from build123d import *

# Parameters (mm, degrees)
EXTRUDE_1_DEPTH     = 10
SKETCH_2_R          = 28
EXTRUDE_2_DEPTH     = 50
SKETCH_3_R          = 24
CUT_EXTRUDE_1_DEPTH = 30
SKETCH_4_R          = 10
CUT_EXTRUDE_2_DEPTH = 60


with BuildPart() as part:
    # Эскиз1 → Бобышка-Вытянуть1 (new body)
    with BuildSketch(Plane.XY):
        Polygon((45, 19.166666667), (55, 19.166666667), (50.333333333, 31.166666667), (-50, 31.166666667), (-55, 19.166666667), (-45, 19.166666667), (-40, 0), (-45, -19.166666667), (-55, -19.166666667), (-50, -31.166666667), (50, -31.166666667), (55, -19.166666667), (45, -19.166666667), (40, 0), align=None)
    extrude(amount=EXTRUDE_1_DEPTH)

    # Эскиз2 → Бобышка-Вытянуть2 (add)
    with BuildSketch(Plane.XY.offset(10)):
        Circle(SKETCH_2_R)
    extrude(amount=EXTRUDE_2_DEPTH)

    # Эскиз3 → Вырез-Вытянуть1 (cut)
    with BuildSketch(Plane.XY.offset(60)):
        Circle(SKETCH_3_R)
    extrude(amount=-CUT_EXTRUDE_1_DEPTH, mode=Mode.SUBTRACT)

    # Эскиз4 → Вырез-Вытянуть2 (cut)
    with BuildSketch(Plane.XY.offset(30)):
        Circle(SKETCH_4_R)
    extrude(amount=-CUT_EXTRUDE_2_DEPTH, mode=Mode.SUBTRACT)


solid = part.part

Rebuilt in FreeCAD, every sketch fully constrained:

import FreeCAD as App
import Part
import Sketcher
from FreeCAD import Vector

doc = App.newDocument("Part")
body = doc.addObject("PartDesign::Body", "Body")

sketch1 = doc.addObject("Sketcher::SketchObject", "Sketch")
body.addObject(sketch1)
sketch1.AttachmentSupport = (doc.XY_Plane, [""])
sketch1.MapMode = "FlatFace"
sketch1.addGeometry([
    Part.LineSegment(Vector(45, 19, 0), Vector(55, 19, 0)),
    Part.LineSegment(Vector(55, 19, 0), Vector(50, 31, 0)),
    Part.LineSegment(Vector(50, 31, 0), Vector(-50, 31, 0)),
    Part.LineSegment(Vector(-50, 31, 0), Vector(-55, 19, 0)),
    Part.LineSegment(Vector(-55, 19, 0), Vector(-45, 19, 0)),
    Part.LineSegment(Vector(-45, 19, 0), Vector(-40, 0, 0)),
    Part.LineSegment(Vector(-40, 0, 0), Vector(-45, -19, 0)),
    Part.LineSegment(Vector(-45, -19, 0), Vector(-55, -19, 0)),
    Part.LineSegment(Vector(-55, -19, 0), Vector(-50, -31, 0)),
    Part.LineSegment(Vector(-50, -31, 0), Vector(50, -31, 0)),
    Part.LineSegment(Vector(50, -31, 0), Vector(55, -19, 0)),
    Part.LineSegment(Vector(55, -19, 0), Vector(45, -19, 0)),
    Part.LineSegment(Vector(45, -19, 0), Vector(40, 0, 0)),
    Part.LineSegment(Vector(40, 0, 0), Vector(45, 19, 0)),
], False)
sketch1.addConstraint([
    Sketcher.Constraint("Coincident", 0, 2, 1, 1),
    Sketcher.Constraint("Coincident", 1, 2, 2, 1),
    Sketcher.Constraint("Coincident", 2, 2, 3, 1),
    Sketcher.Constraint("Coincident", 3, 2, 4, 1),
    Sketcher.Constraint("Coincident", 4, 2, 5, 1),
    Sketcher.Constraint("Coincident", 5, 2, 6, 1),
    Sketcher.Constraint("Coincident", 6, 2, 7, 1),
    Sketcher.Constraint("Coincident", 7, 2, 8, 1),
    Sketcher.Constraint("Coincident", 8, 2, 9, 1),
    Sketcher.Constraint("Coincident", 9, 2, 10, 1),
    Sketcher.Constraint("Coincident", 10, 2, 11, 1),
    Sketcher.Constraint("Coincident", 11, 2, 12, 1),
    Sketcher.Constraint("Coincident", 12, 2, 13, 1),
    Sketcher.Constraint("Coincident", 13, 2, 0, 1),
    Sketcher.Constraint("Horizontal", 0),
    Sketcher.Constraint("Horizontal", 2),
    Sketcher.Constraint("Horizontal", 4),
    Sketcher.Constraint("Horizontal", 7),
    Sketcher.Constraint("Horizontal", 9),
    Sketcher.Constraint("Horizontal", 11),
    Sketcher.Constraint("Symmetric", 0, 2, 7, 2, -1, 1),
    Sketcher.Constraint("Symmetric", 2, 2, 9, 2, -1, 1),
    Sketcher.Constraint("Symmetric", 3, 2, 10, 2, -1, 1),
    Sketcher.Constraint("Symmetric", 5, 2, 12, 2, -1, 1),
    Sketcher.Constraint("Symmetric", 0, 2, 3, 2, -2),
    Sketcher.Constraint("PointOnObject", 5, 2, -1),
    Sketcher.Constraint("Parallel", 5, 12),
    Sketcher.Constraint("Parallel", 6, 13),
    Sketcher.Constraint("Vertical", 4, 2, 6, 2),
    Sketcher.Constraint("Vertical", 2, 2, 8, 2),
    Sketcher.Constraint("DistanceX", 0, 1, 0, 2, 10.0),
    Sketcher.Constraint("DistanceX", 9, 1, 9, 2, 100.0),
    Sketcher.Constraint("Distance", 3, 13.0),
    Sketcher.Constraint("DistanceX", -1, 1, 0, 2, 55.0),
    Sketcher.Constraint("DistanceX", 5, 2, -1, 1, 40.0),
    Sketcher.Constraint("Distance", 1, 12.875472),
    Sketcher.Constraint("Distance", 5, 19.808107),
])
pad1 = doc.addObject("PartDesign::Pad", "Pad")
body.addObject(pad1)
pad1.Profile = sketch1
pad1.Length = 10

sketch2 = doc.addObject("Sketcher::SketchObject", "Sketch001")
body.addObject(sketch2)
sketch2.AttachmentSupport = (doc.XY_Plane, [""])
sketch2.MapMode = "FlatFace"
sketch2.AttachmentOffset = App.Placement(Vector(0, 0, 10), App.Rotation())
sketch2.addGeometry(Part.Circle(Vector(0, 0, 0), Vector(0, 0, 1), 28), False)
sketch2.addConstraint([
    Sketcher.Constraint("Coincident", 0, 3, -1, 1),
    Sketcher.Constraint("Diameter", 0, 56.0),
])
pad2 = doc.addObject("PartDesign::Pad", "Pad001")
body.addObject(pad2)
pad2.Profile = sketch2
pad2.Length = 50

sketch3 = doc.addObject("Sketcher::SketchObject", "Sketch002")
body.addObject(sketch3)
sketch3.AttachmentSupport = (doc.XY_Plane, [""])
sketch3.MapMode = "FlatFace"
sketch3.AttachmentOffset = App.Placement(Vector(0, 0, 60), App.Rotation())
sketch3.addGeometry(Part.Circle(Vector(0, 0, 0), Vector(0, 0, 1), 24), False)
sketch3.addConstraint([
    Sketcher.Constraint("Coincident", 0, 3, -1, 1),
    Sketcher.Constraint("Diameter", 0, 48.0),
])
pocket1 = doc.addObject("PartDesign::Pocket", "Pocket")
body.addObject(pocket1)
pocket1.Profile = sketch3
pocket1.Length = 30

sketch4 = doc.addObject("Sketcher::SketchObject", "Sketch003")
body.addObject(sketch4)
sketch4.AttachmentSupport = (doc.XY_Plane, [""])
sketch4.MapMode = "FlatFace"
sketch4.AttachmentOffset = App.Placement(Vector(0, 0, 30), App.Rotation())
sketch4.addGeometry(Part.Circle(Vector(0, 0, 0), Vector(0, 0, 1), 10), False)
sketch4.addConstraint([
    Sketcher.Constraint("Coincident", 0, 3, -1, 1),
    Sketcher.Constraint("Diameter", 0, 20.0),
])
pocket2 = doc.addObject("PartDesign::Pocket", "Pocket001")
body.addObject(pocket2)
pocket2.Profile = sketch4
pocket2.Length = 60

doc.recompute()
